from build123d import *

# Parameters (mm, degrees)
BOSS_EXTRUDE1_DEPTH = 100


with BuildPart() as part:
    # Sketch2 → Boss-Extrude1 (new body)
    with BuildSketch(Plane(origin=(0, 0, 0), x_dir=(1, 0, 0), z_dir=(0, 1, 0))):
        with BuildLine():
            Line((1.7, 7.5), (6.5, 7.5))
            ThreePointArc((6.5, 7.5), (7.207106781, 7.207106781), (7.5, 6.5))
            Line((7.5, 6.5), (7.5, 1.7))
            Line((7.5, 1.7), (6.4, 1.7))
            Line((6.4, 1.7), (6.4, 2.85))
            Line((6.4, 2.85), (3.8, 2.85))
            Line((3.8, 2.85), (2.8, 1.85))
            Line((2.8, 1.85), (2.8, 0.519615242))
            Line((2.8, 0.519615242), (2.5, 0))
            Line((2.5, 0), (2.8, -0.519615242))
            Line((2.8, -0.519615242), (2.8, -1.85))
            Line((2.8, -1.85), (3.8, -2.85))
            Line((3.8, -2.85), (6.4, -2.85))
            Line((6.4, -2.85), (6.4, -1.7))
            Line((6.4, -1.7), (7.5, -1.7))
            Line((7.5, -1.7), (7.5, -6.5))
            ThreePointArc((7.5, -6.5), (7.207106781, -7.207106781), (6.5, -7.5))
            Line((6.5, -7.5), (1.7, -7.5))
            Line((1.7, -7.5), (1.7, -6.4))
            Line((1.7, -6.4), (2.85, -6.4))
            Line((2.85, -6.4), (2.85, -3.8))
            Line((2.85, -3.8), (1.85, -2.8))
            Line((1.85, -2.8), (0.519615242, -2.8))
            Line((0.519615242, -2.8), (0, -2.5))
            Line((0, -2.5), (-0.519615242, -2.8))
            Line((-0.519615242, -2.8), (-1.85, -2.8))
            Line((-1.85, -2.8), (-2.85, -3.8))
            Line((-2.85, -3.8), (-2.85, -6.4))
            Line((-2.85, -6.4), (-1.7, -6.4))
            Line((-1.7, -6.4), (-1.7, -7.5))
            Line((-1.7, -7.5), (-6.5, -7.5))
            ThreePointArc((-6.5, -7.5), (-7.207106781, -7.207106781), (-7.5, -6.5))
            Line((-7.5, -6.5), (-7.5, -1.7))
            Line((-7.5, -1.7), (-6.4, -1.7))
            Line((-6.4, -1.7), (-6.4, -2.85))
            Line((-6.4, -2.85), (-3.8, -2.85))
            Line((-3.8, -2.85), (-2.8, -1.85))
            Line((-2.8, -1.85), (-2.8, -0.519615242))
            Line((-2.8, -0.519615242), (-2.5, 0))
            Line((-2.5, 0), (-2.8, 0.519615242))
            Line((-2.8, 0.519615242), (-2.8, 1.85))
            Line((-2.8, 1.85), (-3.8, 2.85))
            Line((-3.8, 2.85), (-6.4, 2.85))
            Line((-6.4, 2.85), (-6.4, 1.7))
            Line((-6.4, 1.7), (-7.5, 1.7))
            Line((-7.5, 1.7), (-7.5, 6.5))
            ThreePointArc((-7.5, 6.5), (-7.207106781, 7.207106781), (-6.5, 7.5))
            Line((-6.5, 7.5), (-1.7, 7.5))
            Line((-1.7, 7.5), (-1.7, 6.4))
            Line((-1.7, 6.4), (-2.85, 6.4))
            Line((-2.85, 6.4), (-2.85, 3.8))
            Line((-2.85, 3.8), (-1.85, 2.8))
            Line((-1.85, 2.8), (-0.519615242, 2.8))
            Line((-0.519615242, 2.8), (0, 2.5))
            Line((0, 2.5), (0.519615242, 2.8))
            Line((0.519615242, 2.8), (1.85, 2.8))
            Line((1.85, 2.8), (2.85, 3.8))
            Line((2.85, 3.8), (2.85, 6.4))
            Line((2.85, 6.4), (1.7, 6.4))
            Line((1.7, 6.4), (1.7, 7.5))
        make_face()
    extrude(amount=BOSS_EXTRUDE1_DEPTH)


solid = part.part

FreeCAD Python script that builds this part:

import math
import FreeCAD as App
import Part
import Sketcher

V = App.Vector
Q = App.Units.Quantity

doc = App.newDocument("Part")
body = doc.addObject("PartDesign::Body", "Body")

# Sketch on XZ plane
sketch1 = doc.addObject("Sketcher::SketchObject", "Sketch")
body.addObject(sketch1)
sketch1.AttachmentSupport = (doc.XZ_Plane, [""])
sketch1.MapMode = "FlatFace"
sketch1.addGeometry([
    Part.LineSegment(V(6.5, -7.5, 0), V(1.7, -7.5, 0)),  # 0
    Part.LineSegment(V(1.7, -7.5, 0), V(1.7, -6.4, 0)),  # 1
    Part.LineSegment(V(1.7, -6.4, 0), V(2.9, -6.4, 0)),  # 2
    Part.LineSegment(V(2.9, -6.4, 0), V(2.9, -3.8, 0)),  # 3
    Part.LineSegment(V(2.9, -3.8, 0), V(1.9, -2.8, 0)),  # 4
    Part.LineSegment(V(1.9, -2.8, 0), V(0.5, -2.8, 0)),  # 5
    Part.LineSegment(V(0.5, -2.8, 0), V(0, -2.5, 0)),  # 6
    Part.LineSegment(V(0, -2.5, 0), V(-0.5, -2.8, 0)),  # 7
    Part.LineSegment(V(-0.5, -2.8, 0), V(-1.9, -2.8, 0)),  # 8
    Part.LineSegment(V(-1.9, -2.8, 0), V(-2.9, -3.8, 0)),  # 9
    Part.LineSegment(V(-2.9, -3.8, 0), V(-2.9, -6.4, 0)),  # 10
    Part.LineSegment(V(-2.9, -6.4, 0), V(-1.7, -6.4, 0)),  # 11
    Part.LineSegment(V(-1.7, -6.4, 0), V(-1.7, -7.5, 0)),  # 12
    Part.LineSegment(V(-1.7, -7.5, 0), V(-6.5, -7.5, 0)),  # 13
    Part.ArcOfCircle(Part.Circle(V(-6.5, -6.5, 0), V(0, 0, 1), 1), math.radians(-180), math.radians(-90)),  # 14
    Part.LineSegment(V(-7.5, -6.5, 0), V(-7.5, -1.7, 0)),  # 15
    Part.LineSegment(V(-7.5, -1.7, 0), V(-6.4, -1.7, 0)),  # 16
    Part.LineSegment(V(-6.4, -1.7, 0), V(-6.4, -2.9, 0)),  # 17
    Part.LineSegment(V(-6.4, -2.9, 0), V(-3.8, -2.9, 0)),  # 18
    Part.LineSegment(V(-3.8, -2.9, 0), V(-2.8, -1.9, 0)),  # 19
    Part.LineSegment(V(-2.8, -1.9, 0), V(-2.8, -0.5, 0)),  # 20
    Part.LineSegment(V(-2.8, -0.5, 0), V(-2.5, 0, 0)),  # 21
    Part.LineSegment(V(-2.5, 0, 0), V(-2.8, 0.5, 0)),  # 22
    Part.LineSegment(V(-2.8, 0.5, 0), V(-2.8, 1.9, 0)),  # 23
    Part.LineSegment(V(-2.8, 1.9, 0), V(-3.8, 2.9, 0)),  # 24
    Part.LineSegment(V(-3.8, 2.9, 0), V(-6.4, 2.9, 0)),  # 25
    Part.LineSegment(V(-6.4, 2.9, 0), V(-6.4, 1.7, 0)),  # 26
    Part.LineSegment(V(-6.4, 1.7, 0), V(-7.5, 1.7, 0)),  # 27
    Part.LineSegment(V(-7.5, 1.7, 0), V(-7.5, 6.5, 0)),  # 28
    Part.ArcOfCircle(Part.Circle(V(-6.5, 6.5, 0), V(0, 0, 1), 1), math.radians(90), math.radians(180)),  # 29
    Part.LineSegment(V(-6.5, 7.5, 0), V(-1.7, 7.5, 0)),  # 30
    Part.LineSegment(V(-1.7, 7.5, 0), V(-1.7, 6.4, 0)),  # 31
    Part.LineSegment(V(-1.7, 6.4, 0), V(-2.9, 6.4, 0)),  # 32
    Part.LineSegment(V(-2.9, 6.4, 0), V(-2.9, 3.8, 0)),  # 33
    Part.LineSegment(V(-2.9, 3.8, 0), V(-1.9, 2.8, 0)),  # 34
    Part.LineSegment(V(-1.9, 2.8, 0), V(-0.5, 2.8, 0)),  # 35
    Part.LineSegment(V(-0.5, 2.8, 0), V(0, 2.5, 0)),  # 36
    Part.LineSegment(V(0, 2.5, 0), V(0.5, 2.8, 0)),  # 37
    Part.LineSegment(V(0.5, 2.8, 0), V(1.9, 2.8, 0)),  # 38
    Part.LineSegment(V(1.9, 2.8, 0), V(2.9, 3.8, 0)),  # 39
    Part.LineSegment(V(2.9, 3.8, 0), V(2.9, 6.4, 0)),  # 40
    Part.LineSegment(V(2.9, 6.4, 0), V(1.7, 6.4, 0)),  # 41
    Part.LineSegment(V(1.7, 6.4, 0), V(1.7, 7.5, 0)),  # 42
    Part.LineSegment(V(1.7, 7.5, 0), V(6.5, 7.5, 0)),  # 43
    Part.ArcOfCircle(Part.Circle(V(6.5, 6.5, 0), V(0, 0, 1), 1), math.radians(0), math.radians(90)),  # 44
    Part.LineSegment(V(7.5, 6.5, 0), V(7.5, 1.7, 0)),  # 45
    Part.LineSegment(V(7.5, 1.7, 0), V(6.4, 1.7, 0)),  # 46
    Part.LineSegment(V(6.4, 1.7, 0), V(6.4, 2.9, 0)),  # 47
    Part.LineSegment(V(6.4, 2.9, 0), V(3.8, 2.9, 0)),  # 48
    Part.LineSegment(V(3.8, 2.9, 0), V(2.8, 1.9, 0)),  # 49
    Part.LineSegment(V(2.8, 1.9, 0), V(2.8, 0.5, 0)),  # 50
    Part.LineSegment(V(2.8, 0.5, 0), V(2.5, 0, 0)),  # 51
    Part.LineSegment(V(2.5, 0, 0), V(2.8, -0.5, 0)),  # 52
    Part.LineSegment(V(2.8, -0.5, 0), V(2.8, -1.9, 0)),  # 53
    Part.LineSegment(V(2.8, -1.9, 0), V(3.8, -2.9, 0)),  # 54
    Part.LineSegment(V(3.8, -2.9, 0), V(6.4, -2.9, 0)),  # 55
    Part.LineSegment(V(6.4, -2.9, 0), V(6.4, -1.7, 0)),  # 56
    Part.LineSegment(V(6.4, -1.7, 0), V(7.5, -1.7, 0)),  # 57
    Part.LineSegment(V(7.5, -1.7, 0), V(7.5, -6.5, 0)),  # 58
    Part.ArcOfCircle(Part.Circle(V(6.5, -6.5, 0), V(0, 0, 1), 1), math.radians(-90), math.radians(0)),  # 59
], False)
sketch1.addConstraint([
    Sketcher.Constraint("Coincident", 0, 2, 1, 1),
    Sketcher.Constraint("Coincident", 1, 2, 2, 1),
    Sketcher.Constraint("Coincident", 2, 2, 3, 1),
    Sketcher.Constraint("Coincident", 3, 2, 4, 1),
    Sketcher.Constraint("Coincident", 4, 2, 5, 1),
    Sketcher.Constraint("Coincident", 5, 2, 6, 1),
    Sketcher.Constraint("Coincident", 6, 2, 7, 1),
    Sketcher.Constraint("Coincident", 7, 2, 8, 1),
    Sketcher.Constraint("Coincident", 8, 2, 9, 1),
    Sketcher.Constraint("Coincident", 9, 2, 10, 1),
    Sketcher.Constraint("Coincident", 10, 2, 11, 1),
    Sketcher.Constraint("Coincident", 11, 2, 12, 1),
    Sketcher.Constraint("Coincident", 12, 2, 13, 1),
    Sketcher.Constraint("Tangent", 13, 2, 14, 2),
    Sketcher.Constraint("Tangent", 14, 1, 15, 1),
    Sketcher.Constraint("Coincident", 15, 2, 16, 1),
    Sketcher.Constraint("Coincident", 16, 2, 17, 1),
    Sketcher.Constraint("Coincident", 17, 2, 18, 1),
    Sketcher.Constraint("Coincident", 18, 2, 19, 1),
    Sketcher.Constraint("Coincident", 19, 2, 20, 1),
    Sketcher.Constraint("Coincident", 20, 2, 21, 1),
    Sketcher.Constraint("Coincident", 21, 2, 22, 1),
    Sketcher.Constraint("Coincident", 22, 2, 23, 1),
    Sketcher.Constraint("Coincident", 23, 2, 24, 1),
    Sketcher.Constraint("Coincident", 24, 2, 25, 1),
    Sketcher.Constraint("Coincident", 25, 2, 26, 1),
    Sketcher.Constraint("Coincident", 26, 2, 27, 1),
    Sketcher.Constraint("Coincident", 27, 2, 28, 1),
    Sketcher.Constraint("Tangent", 28, 2, 29, 2),
    Sketcher.Constraint("Tangent", 29, 1, 30, 1),
    Sketcher.Constraint("Coincident", 30, 2, 31, 1),
    Sketcher.Constraint("Coincident", 31, 2, 32, 1),
    Sketcher.Constraint("Coincident", 32, 2, 33, 1),
    Sketcher.Constraint("Coincident", 33, 2, 34, 1),
    Sketcher.Constraint("Coincident", 34, 2, 35, 1),
    Sketcher.Constraint("Coincident", 35, 2, 36, 1),
    Sketcher.Constraint("Coincident", 36, 2, 37, 1),
    Sketcher.Constraint("Coincident", 37, 2, 38, 1),
    Sketcher.Constraint("Coincident", 38, 2, 39, 1),
    Sketcher.Constraint("Coincident", 39, 2, 40, 1),
    Sketcher.Constraint("Coincident", 40, 2, 41, 1),
    Sketcher.Constraint("Coincident", 41, 2, 42, 1),
    Sketcher.Constraint("Coincident", 42, 2, 43, 1),
    Sketcher.Constraint("Tangent", 43, 2, 44, 2),
    Sketcher.Constraint("Tangent", 44, 1, 45, 1),
    Sketcher.Constraint("Coincident", 45, 2, 46, 1),
    Sketcher.Constraint("Coincident", 46, 2, 47, 1),
    Sketcher.Constraint("Coincident", 47, 2, 48, 1),
    Sketcher.Constraint("Coincident", 48, 2, 49, 1),
    Sketcher.Constraint("Coincident", 49, 2, 50, 1),
    Sketcher.Constraint("Coincident", 50, 2, 51, 1),
    Sketcher.Constraint("Coincident", 51, 2, 52, 1),
    Sketcher.Constraint("Coincident", 52, 2, 53, 1),
    Sketcher.Constraint("Coincident", 53, 2, 54, 1),
    Sketcher.Constraint("Coincident", 54, 2, 55, 1),
    Sketcher.Constraint("Coincident", 55, 2, 56, 1),
    Sketcher.Constraint("Coincident", 56, 2, 57, 1),
    Sketcher.Constraint("Coincident", 57, 2, 58, 1),
    Sketcher.Constraint("Tangent", 58, 2, 59, 2),
    Sketcher.Constraint("Tangent", 59, 1, 0, 1),
    Sketcher.Constraint("Horizontal", 0),
    Sketcher.Constraint("Vertical", 1),
    Sketcher.Constraint("Horizontal", 2),
    Sketcher.Constraint("Vertical", 3),
    Sketcher.Constraint("Horizontal", 5),
    Sketcher.Constraint("Horizontal", 8),
    Sketcher.Constraint("Vertical", 10),
    Sketcher.Constraint("Horizontal", 11),
    Sketcher.Constraint("Vertical", 12),
    Sketcher.Constraint("Horizontal", 13),
    Sketcher.Constraint("Vertical", 15),
    Sketcher.Constraint("Horizontal", 16),
    Sketcher.Constraint("Vertical", 17),
    Sketcher.Constraint("Horizontal", 18),
    Sketcher.Constraint("Vertical", 20),
    Sketcher.Constraint("Vertical", 23),
    Sketcher.Constraint("Horizontal", 25),
    Sketcher.Constraint("Vertical", 26),
    Sketcher.Constraint("Horizontal", 27),
    Sketcher.Constraint("Vertical", 28),
    Sketcher.Constraint("Horizontal", 30),
    Sketcher.Constraint("Vertical", 31),
    Sketcher.Constraint("Horizontal", 32),
    Sketcher.Constraint("Vertical", 33),
    Sketcher.Constraint("Horizontal", 35),
    Sketcher.Constraint("Horizontal", 38),
    Sketcher.Constraint("Vertical", 40),
    Sketcher.Constraint("Horizontal", 41),
    Sketcher.Constraint("Vertical", 42),
    Sketcher.Constraint("Horizontal", 43),
    Sketcher.Constraint("Vertical", 45),
    Sketcher.Constraint("Horizontal", 46),
    Sketcher.Constraint("Vertical", 47),
    Sketcher.Constraint("Horizontal", 48),
    Sketcher.Constraint("Vertical", 50),
    Sketcher.Constraint("Vertical", 53),
    Sketcher.Constraint("Horizontal", 55),
    Sketcher.Constraint("Vertical", 56),
    Sketcher.Constraint("Horizontal", 57),
    Sketcher.Constraint("Vertical", 58),
    Sketcher.Constraint("Equal", 14, 29),
    Sketcher.Constraint("Equal", 29, 44),
    Sketcher.Constraint("Equal", 44, 59),
    Sketcher.Constraint("Symmetric", 14, 3, 44, 3, -1, 1),
    Sketcher.Constraint("Symmetric", 29, 3, 59, 3, -1, 1),
    Sketcher.Constraint("Symmetric", 1, 2, 31, 2, -1, 1),
    Sketcher.Constraint("Symmetric", 3, 2, 33, 2, -1, 1),
    Sketcher.Constraint("Symmetric", 4, 2, 34, 2, -1, 1),
    Sketcher.Constraint("Symmetric", 6, 2, 36, 2, -1, 1),
    Sketcher.Constraint("Symmetric", 7, 2, 37, 2, -1, 1),
    Sketcher.Constraint("Symmetric", 9, 2, 39, 2, -1, 1),
    Sketcher.Constraint("Symmetric", 11, 2, 41, 2, -1, 1),
    Sketcher.Constraint("Symmetric", 16, 2, 46, 2, -1, 1),
    Sketcher.Constraint("Symmetric", 18, 2, 48, 2, -1, 1),
    Sketcher.Constraint("Symmetric", 19, 2, 49, 2, -1, 1),
    Sketcher.Constraint("Symmetric", 21, 2, 51, 2, -1, 1),
    Sketcher.Constraint("Symmetric", 22, 2, 52, 2, -1, 1),
    Sketcher.Constraint("Symmetric", 24, 2, 54, 2, -1, 1),
    Sketcher.Constraint("Symmetric", 26, 2, 56, 2, -1, 1),
    Sketcher.Constraint("Symmetric", 29, 3, 44, 3, -2),
    Sketcher.Constraint("Symmetric", 5, 2, 7, 2, -2),
    Sketcher.Constraint("Symmetric", 3, 2, 9, 2, -2),
    Sketcher.Constraint("Symmetric", 1, 2, 11, 2, -2),
    Sketcher.Constraint("Symmetric", 26, 2, 46, 2, -2),
    Sketcher.Constraint("Symmetric", 24, 2, 48, 2, -2),
    Sketcher.Constraint("Symmetric", 23, 2, 49, 2, -2),
    Sketcher.Constraint("PointOnObject", 6, 2, -2),
    Sketcher.Constraint("PointOnObject", 21, 2, -1),
    Sketcher.Constraint("Perpendicular", 4, 9),
    Sketcher.Constraint("Parallel", 9, 19),
    Sketcher.Constraint("Perpendicular", 6, 21),
    Sketcher.Constraint("Perpendicular", 7, 22),
    Sketcher.Constraint("Perpendicular", 19, 24),
    Sketcher.Constraint("Perpendicular", 21, 36),
    Sketcher.Constraint("Perpendicular", 34, 39),
    Sketcher.Constraint("Perpendicular", 36, 51),
    Sketcher.Constraint("Perpendicular", 49, 54),
    Sketcher.Constraint("Equal", 57, 1),
    Sketcher.Constraint("Equal", 55, 3),
    Sketcher.Constraint("Equal", 43, 15),
    Sketcher.Constraint("Equal", 41, 17),
    Sketcher.Constraint("Equal", 38, 20),
    Sketcher.Constraint("Equal", 9, 19),
    Sketcher.Constraint("Equal", 7, 21),
    Sketcher.Constraint("Radius", 14, Q("1 mm")),
    Sketcher.Constraint("Angle", 6, Q("150 deg")),
    Sketcher.Constraint("DistanceX", 0, 2, 0, 1, Q("4.8 mm")),
    Sketcher.Constraint("DistanceX", 16, 1, 16, 2, Q("1.1 mm")),
    Sketcher.Constraint("DistanceX", 18, 1, 18, 2, Q("2.6 mm")),
    Sketcher.Constraint("Distance", 6, Q("0.6 mm")),
    Sketcher.Constraint("DistanceX", 2, 1, 2, 2, Q("1.15 mm")),
    Sketcher.Constraint("DistanceX", 14, 3, -1, 1, Q("6.5 mm")),
    Sketcher.Constraint("DistanceY", 4, 2, -1, 1, Q("2.8 mm")),
])
pad1 = doc.addObject("PartDesign::Pad", "Pad")
body.addObject(pad1)
pad1.Profile = sketch1
pad1.Length = 100
pad1.Reversed = True

doc.recompute()
